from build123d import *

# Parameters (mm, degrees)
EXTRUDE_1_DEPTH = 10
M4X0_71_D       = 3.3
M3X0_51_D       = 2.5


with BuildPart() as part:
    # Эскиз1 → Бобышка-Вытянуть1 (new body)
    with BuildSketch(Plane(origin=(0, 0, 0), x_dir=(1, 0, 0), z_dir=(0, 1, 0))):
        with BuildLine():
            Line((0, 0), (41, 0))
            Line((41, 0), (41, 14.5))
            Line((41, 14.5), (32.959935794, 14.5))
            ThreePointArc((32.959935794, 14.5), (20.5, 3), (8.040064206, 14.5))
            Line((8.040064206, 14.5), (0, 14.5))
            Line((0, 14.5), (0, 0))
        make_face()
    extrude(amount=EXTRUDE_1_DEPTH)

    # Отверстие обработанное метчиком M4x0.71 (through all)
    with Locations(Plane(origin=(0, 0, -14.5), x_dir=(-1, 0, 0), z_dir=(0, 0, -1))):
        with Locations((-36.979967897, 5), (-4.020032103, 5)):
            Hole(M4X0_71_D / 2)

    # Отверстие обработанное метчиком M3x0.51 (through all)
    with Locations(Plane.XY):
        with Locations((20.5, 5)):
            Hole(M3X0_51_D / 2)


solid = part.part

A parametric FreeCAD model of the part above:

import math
import FreeCAD as App
import Part
import Sketcher
from FreeCAD import Vector
Q = App.Units.Quantity

doc = App.newDocument("Part")
body = doc.addObject("PartDesign::Body", "Body")

sketch1 = doc.addObject("Sketcher::SketchObject", "Sketch")
body.addObject(sketch1)
sketch1.AttachmentSupport = (doc.XZ_Plane, [""])
sketch1.MapMode = "FlatFace"
sketch1.addGeometry([
    Part.LineSegment(Vector(0, 0, 0), Vector(41, 0, 0)),
    Part.LineSegment(Vector(41, 0, 0), Vector(41, -14.5, 0)),
    Part.LineSegment(Vector(41, -14.5, 0), Vector(32.959936, -14.5, 0)),
    Part.ArcOfCircle(Part.Circle(Vector(20.5, -15.5, 0), Vector(0, 0, 1), 12.5), math.radians(4.588566), math.radians(175.411434)),
    Part.LineSegment(Vector(8.040064, -14.5, 0), Vector(0, -14.5, 0)),
    Part.LineSegment(Vector(0, -14.5, 0), Vector(0, 0, 0)),
], False)
sketch1.addConstraint([
    Sketcher.Constraint("Coincident", 0, 2, 1, 1),
    Sketcher.Constraint("Coincident", 1, 2, 2, 1),
    Sketcher.Constraint("Coincident", 2, 2, 3, 1),
    Sketcher.Constraint("Coincident", 3, 2, 4, 1),
    Sketcher.Constraint("Coincident", 4, 2, 5, 1),
    Sketcher.Constraint("Coincident", 5, 2, 0, 1),
    Sketcher.Constraint("Horizontal", 0),
    Sketcher.Constraint("Vertical", 1),
    Sketcher.Constraint("Horizontal", 2),
    Sketcher.Constraint("Horizontal", 4),
    Sketcher.Constraint("Vertical", 5),
    Sketcher.Constraint("Coincident", 5, 2, -1, 1),
    Sketcher.Constraint("Horizontal", 2, 2, 3, 2),
    Sketcher.Constraint("Equal", 2, 4),
    Sketcher.Constraint("Radius", 3, Q("12.5 mm")),
    Sketcher.Constraint("DistanceX", 0, 1, 0, 2, Q("41 mm")),
    Sketcher.Constraint("DistanceY", 1, 2, 1, 1, Q("14.5 mm")),
    Sketcher.Constraint("DistanceY", 3, 3, 1, 2, Q("1 mm")),
])
pad1 = doc.addObject("PartDesign::Pad", "Pad")
body.addObject(pad1)
pad1.Profile = sketch1
pad1.Length = 10
pad1.Reversed = True

sketch2 = doc.addObject("Sketcher::SketchObject", "Sketch001")
body.addObject(sketch2)
sketch2.AttachmentSupport = (doc.XY_Plane, [""])
sketch2.MapMode = "FlatFace"
sketch2.AttachmentOffset = App.Placement(Vector(0, 0, -14.5), App.Rotation())
sketch2.addGeometry([
    Part.Circle(Vector(36.979968, 5, 0), Vector(0, 0, 1), 1.65),
    Part.Circle(Vector(4.020032, 5, 0), Vector(0, 0, 1), 1.65),
], False)
sketch2.addConstraint([
    Sketcher.Constraint("Equal", 0, 1),
    Sketcher.Constraint("Horizontal", 0, 3, 1, 3),
    Sketcher.Constraint("Diameter", 0, Q("3.3 mm")),
    Sketcher.Constraint("DistanceY", -1, 1, 0, 3, Q("5 mm")),
    Sketcher.Constraint("DistanceX", -1, 1, 0, 3, Q("36.979968 mm")),
    Sketcher.Constraint("DistanceX", -1, 1, 1, 3, Q("4.020032 mm")),
])
doc.recompute()
hole = doc.addObject("PartDesign::Hole", "Hole")
body.addObject(hole)
hole.Profile = sketch2
hole.ThreadType = "None"
hole.Diameter = 3.3
hole.DepthType = "ThroughAll"
hole.Reversed = True

sketch3 = doc.addObject("Sketcher::SketchObject", "Sketch002")
body.addObject(sketch3)
sketch3.AttachmentSupport = (doc.XY_Plane, [""])
sketch3.MapMode = "FlatFace"
sketch3.addGeometry(Part.Circle(Vector(20.5, 5, 0), Vector(0, 0, 1), 1.25), False)
sketch3.addConstraint([
    Sketcher.Constraint("Diameter", 0, Q("2.5 mm")),
    Sketcher.Constraint("DistanceY", -1, 1, 0, 3, Q("5 mm")),
    Sketcher.Constraint("DistanceX", -1, 1, 0, 3, Q("20.5 mm")),
])
doc.recompute()
hole2 = doc.addObject("PartDesign::Hole", "Hole001")
body.addObject(hole2)
hole2.Profile = sketch3
hole2.ThreadType = "None"
hole2.Diameter = 2.5
hole2.DepthType = "ThroughAll"

doc.recompute()
